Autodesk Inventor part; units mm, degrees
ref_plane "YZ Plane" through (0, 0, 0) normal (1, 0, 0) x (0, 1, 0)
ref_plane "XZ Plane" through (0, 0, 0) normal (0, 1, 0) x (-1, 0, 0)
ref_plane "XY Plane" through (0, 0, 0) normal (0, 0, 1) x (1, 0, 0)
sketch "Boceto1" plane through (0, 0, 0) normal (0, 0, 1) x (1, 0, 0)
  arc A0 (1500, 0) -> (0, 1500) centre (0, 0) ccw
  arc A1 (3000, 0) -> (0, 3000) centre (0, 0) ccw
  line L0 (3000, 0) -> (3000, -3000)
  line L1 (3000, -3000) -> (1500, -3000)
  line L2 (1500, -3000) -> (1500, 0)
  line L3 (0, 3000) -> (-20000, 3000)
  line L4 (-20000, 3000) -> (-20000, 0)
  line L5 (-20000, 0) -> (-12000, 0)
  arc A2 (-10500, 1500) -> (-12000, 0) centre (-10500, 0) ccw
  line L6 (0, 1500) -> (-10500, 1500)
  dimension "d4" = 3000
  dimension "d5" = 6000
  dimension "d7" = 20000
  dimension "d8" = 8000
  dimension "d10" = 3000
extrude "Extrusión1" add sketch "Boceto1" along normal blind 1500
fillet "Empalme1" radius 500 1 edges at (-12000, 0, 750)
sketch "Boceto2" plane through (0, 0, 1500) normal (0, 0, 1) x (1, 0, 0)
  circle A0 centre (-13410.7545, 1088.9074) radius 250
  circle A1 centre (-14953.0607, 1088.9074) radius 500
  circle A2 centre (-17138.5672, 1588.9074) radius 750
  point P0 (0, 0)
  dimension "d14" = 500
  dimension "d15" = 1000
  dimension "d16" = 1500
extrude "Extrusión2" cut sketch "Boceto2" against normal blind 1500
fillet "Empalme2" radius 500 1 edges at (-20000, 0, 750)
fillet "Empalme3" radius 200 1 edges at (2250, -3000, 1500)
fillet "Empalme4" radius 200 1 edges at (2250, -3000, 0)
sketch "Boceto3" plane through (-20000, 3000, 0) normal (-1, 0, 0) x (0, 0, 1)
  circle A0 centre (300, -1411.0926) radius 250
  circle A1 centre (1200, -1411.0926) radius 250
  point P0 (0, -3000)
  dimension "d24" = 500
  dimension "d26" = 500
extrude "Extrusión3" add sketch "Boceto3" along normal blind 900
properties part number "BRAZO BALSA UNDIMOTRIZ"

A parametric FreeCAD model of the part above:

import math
import FreeCAD as App
import Part
import Sketcher


def edges_at(feature, points):
    """Names of the edges that pass closest to the given points."""
    edges = feature.Shape.Edges
    near = lambda p: min(range(len(edges)), key=lambda i: edges[i].distToShape(Part.Vertex(*p))[0])
    return sorted({f"Edge{near(p) + 1}" for p in points})

doc = App.newDocument("Part")
body = doc.addObject("PartDesign::Body", "Body")

sketch1 = body.newObject("Sketcher::SketchObject", "Sketch")
sketch1.AttachmentSupport = (doc.getObject("XY_Plane"), [""])
sketch1.MapMode = "FlatFace"
sketch1.addGeometry([
    Part.ArcOfCircle(Part.Circle(App.Vector(0, 0, 0), App.Vector(0, 0, 1), 1500), math.radians(0), math.radians(90)),
    Part.LineSegment(App.Vector(1500, 0, 0), App.Vector(1500, -3000, 0)),
    Part.LineSegment(App.Vector(1500, -3000, 0), App.Vector(3000, -3000, 0)),
    Part.LineSegment(App.Vector(3000, -3000, 0), App.Vector(3000, 0, 0)),
    Part.ArcOfCircle(Part.Circle(App.Vector(0, 0, 0), App.Vector(0, 0, 1), 3000), math.radians(0), math.radians(90)),
    Part.LineSegment(App.Vector(0, 3000, 0), App.Vector(-20000, 3000, 0)),
    Part.LineSegment(App.Vector(-20000, 3000, 0), App.Vector(-20000, 0, 0)),
    Part.LineSegment(App.Vector(-20000, 0, 0), App.Vector(-12000, 0, 0)),
    Part.ArcOfCircle(Part.Circle(App.Vector(-10500, 0, 0), App.Vector(0, 0, 1), 1500), math.radians(90), math.radians(180)),
    Part.LineSegment(App.Vector(-10500, 1500, 0), App.Vector(0, 1500, 0)),
], False)
sketch1.addConstraint([
    Sketcher.Constraint("Coincident", 0, 1, 1, 1),
    Sketcher.Constraint("Coincident", 1, 2, 2, 1),
    Sketcher.Constraint("Coincident", 2, 2, 3, 1),
    Sketcher.Constraint("Coincident", 3, 2, 4, 1),
    Sketcher.Constraint("Coincident", 4, 2, 5, 1),
    Sketcher.Constraint("Coincident", 5, 2, 6, 1),
    Sketcher.Constraint("Coincident", 6, 2, 7, 1),
    Sketcher.Constraint("Coincident", 7, 2, 8, 2),
    Sketcher.Constraint("Coincident", 8, 1, 9, 1),
    Sketcher.Constraint("Coincident", 9, 2, 0, 2),
    Sketcher.Constraint("Vertical", 1),
    Sketcher.Constraint("Horizontal", 2),
    Sketcher.Constraint("Vertical", 3),
    Sketcher.Constraint("Horizontal", 5),
    Sketcher.Constraint("Vertical", 6),
    Sketcher.Constraint("Horizontal", 7),
    Sketcher.Constraint("Horizontal", 9),
    Sketcher.Constraint("Coincident", 0, 3, -1, 1),
    Sketcher.Constraint("Coincident", 4, 3, -1, 1),
    Sketcher.Constraint("Equal", 0, 8),
    Sketcher.Constraint("PointOnObject", 3, 2, -1),
    Sketcher.Constraint("PointOnObject", 6, 2, -1),
    Sketcher.Constraint("PointOnObject", 9, 2, -2),
    Sketcher.Constraint("Equal", 1, 3),
    Sketcher.Constraint("Equal", 3, 6),
    Sketcher.Constraint("Radius", 0, 1500.0),
    Sketcher.Constraint("Radius", 4, 3000.0),
    Sketcher.Constraint("DistanceX", 5, 2, 5, 1, 20000.0),
    Sketcher.Constraint("DistanceX", 7, 1, 7, 2, 8000.0),
    Sketcher.Constraint("DistanceX", 5, 2, -1, 1, 20000.0),
    Sketcher.Constraint("DistanceX", 9, 1, 9, 2, 10500.0),
])
pad1 = body.newObject("PartDesign::Pad", "Pad")
pad1.Profile = sketch1
pad1.Length = 1500
doc.recompute()

fillet = body.newObject("PartDesign::Fillet", "Fillet")
fillet.Base = (pad1, edges_at(pad1, [(-12000, 0, 750)]))
fillet.Radius = 500

sketch2 = body.newObject("Sketcher::SketchObject", "Sketch001")
sketch2.AttachmentSupport = (doc.getObject("XY_Plane"), [""])
sketch2.MapMode = "FlatFace"
sketch2.AttachmentOffset = App.Placement(App.Vector(0, 0, 1500), App.Rotation())
sketch2.addGeometry([
    Part.Circle(App.Vector(-13411, 1089, 0), App.Vector(0, 0, 1), 250),
    Part.Circle(App.Vector(-14953, 1089, 0), App.Vector(0, 0, 1), 500),
    Part.Circle(App.Vector(-17139, 1589, 0), App.Vector(0, 0, 1), 750),
], False)
sketch2.addConstraint([
    Sketcher.Constraint("Horizontal", 0, 3, 1, 3),
    Sketcher.Constraint("Diameter", 0, 500.0),
    Sketcher.Constraint("Diameter", 1, 1000.0),
    Sketcher.Constraint("Diameter", 2, 1500.0),
    Sketcher.Constraint("DistanceY", 1, 3, 2, 3, 500.0),
    Sketcher.Constraint("DistanceX", 0, 3, -1, 1, 13410.7545),
    Sketcher.Constraint("DistanceY", -1, 1, 0, 3, 1088.9074),
    Sketcher.Constraint("DistanceX", 1, 3, -1, 1, 14953.0607),
    Sketcher.Constraint("DistanceX", 2, 3, -1, 1, 17138.5672),
])
pocket1 = body.newObject("PartDesign::Pocket", "Pocket")
pocket1.Profile = sketch2
pocket1.Length = 1500
doc.recompute()

fillet2 = body.newObject("PartDesign::Fillet", "Fillet001")
fillet2.Base = (pocket1, edges_at(pocket1, [(-20000, 0, 750)]))
fillet2.Radius = 500
doc.recompute()

fillet3 = body.newObject("PartDesign::Fillet", "Fillet002")
fillet3.Base = (fillet2, edges_at(fillet2, [(2250, -3000, 1500)]))
fillet3.Radius = 200
doc.recompute()

fillet4 = body.newObject("PartDesign::Fillet", "Fillet003")
fillet4.Base = (fillet3, edges_at(fillet3, [(2250, -3000, 0)]))
fillet4.Radius = 200

sketch3 = body.newObject("Sketcher::SketchObject", "Sketch002")
sketch3.AttachmentSupport = (doc.getObject("YZ_Plane"), [""])
sketch3.MapMode = "FlatFace"
sketch3.AttachmentOffset = App.Placement(App.Vector(0, 0, -20000), App.Rotation())
sketch3.addGeometry([
    Part.Circle(App.Vector(1589, 300, 0), App.Vector(0, 0, 1), 250),
    Part.Circle(App.Vector(1589, 1200, 0), App.Vector(0, 0, 1), 250),
], False)
sketch3.addConstraint([
    Sketcher.Constraint("Equal", 0, 1),
    Sketcher.Constraint("Vertical", 0, 3, 1, 3),
    Sketcher.Constraint("Diameter", 0, 500.0),
    Sketcher.Constraint("DistanceY", -1, 1, 0, 3, 300.0),
    Sketcher.Constraint("DistanceY", -1, 1, 1, 3, 1200.0),
    Sketcher.Constraint("DistanceX", -1, 1, 0, 3, 1588.9074),
])
pad2 = body.newObject("PartDesign::Pad", "Pad001")
pad2.Profile = sketch3
pad2.Length = 900
pad2.Reversed = True

doc.recompute()
